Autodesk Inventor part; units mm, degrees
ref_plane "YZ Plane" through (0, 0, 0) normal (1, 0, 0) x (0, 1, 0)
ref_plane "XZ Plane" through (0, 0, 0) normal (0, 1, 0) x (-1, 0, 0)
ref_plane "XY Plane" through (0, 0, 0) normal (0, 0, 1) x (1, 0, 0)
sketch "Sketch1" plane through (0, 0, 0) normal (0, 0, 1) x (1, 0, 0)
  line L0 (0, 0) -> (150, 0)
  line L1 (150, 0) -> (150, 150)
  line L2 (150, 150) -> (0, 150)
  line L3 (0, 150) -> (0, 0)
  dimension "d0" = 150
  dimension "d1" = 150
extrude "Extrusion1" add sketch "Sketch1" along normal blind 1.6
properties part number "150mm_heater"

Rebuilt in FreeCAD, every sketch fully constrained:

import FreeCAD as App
import Part
import Sketcher
Q = App.Units.Quantity

doc = App.newDocument("Part")
body = doc.addObject("PartDesign::Body", "Body")

sketch1 = body.newObject("Sketcher::SketchObject", "Sketch")
sketch1.AttachmentSupport = (doc.getObject("XY_Plane"), [""])
sketch1.MapMode = "FlatFace"
sketch1.addGeometry(Part.LineSegment(App.Vector(0, 150, 0), App.Vector(0, 0, 0)), False)
sketch1.addGeometry(Part.LineSegment(App.Vector(0, 0, 0), App.Vector(150, 0, 0)), False)
sketch1.addGeometry(Part.LineSegment(App.Vector(150, 0, 0), App.Vector(150, 150, 0)), False)
sketch1.addGeometry(Part.LineSegment(App.Vector(150, 150, 0), App.Vector(0, 150, 0)), False)
sketch1.addConstraint(Sketcher.Constraint("Coincident", 0, 2, 1, 1))
sketch1.addConstraint(Sketcher.Constraint("Coincident", 1, 2, 2, 1))
sketch1.addConstraint(Sketcher.Constraint("Coincident", 2, 2, 3, 1))
sketch1.addConstraint(Sketcher.Constraint("Coincident", 3, 2, 0, 1))
sketch1.addConstraint(Sketcher.Constraint("Vertical", 0))
sketch1.addConstraint(Sketcher.Constraint("Horizontal", 1))
sketch1.addConstraint(Sketcher.Constraint("Vertical", 2))
sketch1.addConstraint(Sketcher.Constraint("Horizontal", 3))
sketch1.addConstraint(Sketcher.Constraint("Coincident", 0, 2, -1, 1))
sketch1.addConstraint(Sketcher.Constraint("Equal", 3, 0))
sketch1.addConstraint(Sketcher.Constraint("DistanceX", 1, 1, 1, 2, Q("5.9055 in")))
pad1 = body.newObject("PartDesign::Pad", "Pad")
pad1.Profile = sketch1
pad1.Length = Q("0.0629921 in")

doc.recompute()
